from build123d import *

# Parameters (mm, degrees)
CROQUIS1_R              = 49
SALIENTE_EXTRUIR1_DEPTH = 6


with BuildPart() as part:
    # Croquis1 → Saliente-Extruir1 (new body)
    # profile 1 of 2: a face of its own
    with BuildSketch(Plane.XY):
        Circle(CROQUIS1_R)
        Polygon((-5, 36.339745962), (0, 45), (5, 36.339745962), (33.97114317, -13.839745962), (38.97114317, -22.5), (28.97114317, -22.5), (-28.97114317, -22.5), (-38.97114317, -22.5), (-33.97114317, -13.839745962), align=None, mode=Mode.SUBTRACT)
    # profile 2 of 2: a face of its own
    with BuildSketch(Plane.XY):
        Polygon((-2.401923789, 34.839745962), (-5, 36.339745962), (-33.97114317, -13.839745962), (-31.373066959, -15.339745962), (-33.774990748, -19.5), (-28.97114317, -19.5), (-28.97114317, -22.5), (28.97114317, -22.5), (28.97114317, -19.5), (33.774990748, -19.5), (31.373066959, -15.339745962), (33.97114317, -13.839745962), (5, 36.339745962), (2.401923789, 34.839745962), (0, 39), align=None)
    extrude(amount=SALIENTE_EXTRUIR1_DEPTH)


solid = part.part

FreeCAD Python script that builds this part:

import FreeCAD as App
import Part
import Sketcher
from FreeCAD import Vector
Q = App.Units.Quantity

doc = App.newDocument("Part")
body = doc.addObject("PartDesign::Body", "Body")

sketch1 = doc.addObject("Sketcher::SketchObject", "Sketch")
body.addObject(sketch1)
sketch1.AttachmentSupport = (doc.XY_Plane, [""])
sketch1.MapMode = "FlatFace"
sketch1.addGeometry([
    Part.Circle(Vector(0, 0, 0), Vector(0, 0, 1), 49),
    Part.LineSegment(Vector(-5, 36.3, 0), Vector(0, 45, 0)),
    Part.LineSegment(Vector(0, 45, 0), Vector(5, 36.3, 0)),
    Part.LineSegment(Vector(5, 36.3, 0), Vector(2.4, 34.8, 0)),
    Part.LineSegment(Vector(2.4, 34.8, 0), Vector(0, 39, 0)),
    Part.LineSegment(Vector(0, 39, 0), Vector(-2.4, 34.8, 0)),
    Part.LineSegment(Vector(-2.4, 34.8, 0), Vector(-5, 36.3, 0)),
    Part.LineSegment(Vector(34, -13.8, 0), Vector(39, -22.5, 0)),
    Part.LineSegment(Vector(39, -22.5, 0), Vector(29, -22.5, 0)),
    Part.LineSegment(Vector(29, -22.5, 0), Vector(29, -19.5, 0)),
    Part.LineSegment(Vector(29, -19.5, 0), Vector(33.8, -19.5, 0)),
    Part.LineSegment(Vector(33.8, -19.5, 0), Vector(31.4, -15.3, 0)),
    Part.LineSegment(Vector(31.4, -15.3, 0), Vector(34, -13.8, 0)),
    Part.LineSegment(Vector(-29, -22.5, 0), Vector(-39, -22.5, 0)),
    Part.LineSegment(Vector(-39, -22.5, 0), Vector(-34, -13.8, 0)),
    Part.LineSegment(Vector(-34, -13.8, 0), Vector(-31.4, -15.3, 0)),
    Part.LineSegment(Vector(-31.4, -15.3, 0), Vector(-33.8, -19.5, 0)),
    Part.LineSegment(Vector(-33.8, -19.5, 0), Vector(-29, -19.5, 0)),
    Part.LineSegment(Vector(-29, -19.5, 0), Vector(-29, -22.5, 0)),
], False)
sketch1.addConstraint([
    Sketcher.Constraint("Coincident", 1, 2, 2, 1),
    Sketcher.Constraint("Coincident", 2, 2, 3, 1),
    Sketcher.Constraint("Coincident", 3, 2, 4, 1),
    Sketcher.Constraint("Coincident", 4, 2, 5, 1),
    Sketcher.Constraint("Coincident", 5, 2, 6, 1),
    Sketcher.Constraint("Coincident", 6, 2, 1, 1),
    Sketcher.Constraint("Coincident", 7, 2, 8, 1),
    Sketcher.Constraint("Coincident", 8, 2, 9, 1),
    Sketcher.Constraint("Coincident", 9, 2, 10, 1),
    Sketcher.Constraint("Coincident", 10, 2, 11, 1),
    Sketcher.Constraint("Coincident", 11, 2, 12, 1),
    Sketcher.Constraint("Coincident", 12, 2, 7, 1),
    Sketcher.Constraint("Coincident", 13, 2, 14, 1),
    Sketcher.Constraint("Coincident", 14, 2, 15, 1),
    Sketcher.Constraint("Coincident", 15, 2, 16, 1),
    Sketcher.Constraint("Coincident", 16, 2, 17, 1),
    Sketcher.Constraint("Coincident", 17, 2, 18, 1),
    Sketcher.Constraint("Coincident", 18, 2, 13, 1),
    Sketcher.Constraint("Horizontal", 8),
    Sketcher.Constraint("Vertical", 9),
    Sketcher.Constraint("Horizontal", 10),
    Sketcher.Constraint("Horizontal", 13),
    Sketcher.Constraint("Horizontal", 17),
    Sketcher.Constraint("Vertical", 18),
    Sketcher.Constraint("Coincident", 0, 3, -1, 1),
    Sketcher.Constraint("Symmetric", 3, 2, 5, 2, -2),
    Sketcher.Constraint("Symmetric", 2, 2, 6, 2, -2),
    Sketcher.Constraint("Symmetric", 7, 2, 13, 2, -2),
    Sketcher.Constraint("Symmetric", 12, 2, 14, 2, -2),
    Sketcher.Constraint("Symmetric", 11, 2, 15, 2, -2),
    Sketcher.Constraint("Symmetric", 10, 2, 16, 2, -2),
    Sketcher.Constraint("PointOnObject", 1, 2, -2),
    Sketcher.Constraint("PointOnObject", 4, 2, -2),
    Sketcher.Constraint("Perpendicular", 2, 3),
    Sketcher.Constraint("Perpendicular", 3, 4),
    Sketcher.Constraint("Parallel", 4, 7),
    Sketcher.Constraint("Parallel", 7, 11),
    Sketcher.Constraint("Perpendicular", 11, 12),
    Sketcher.Constraint("Equal", 8, 13),
    Sketcher.Constraint("Equal", 2, 7),
    Sketcher.Constraint("Equal", 5, 11),
    Sketcher.Constraint("Equal", 6, 12),
    Sketcher.Constraint("Diameter", 0, 98.0),
    Sketcher.Constraint("DistanceX", 8, 2, 8, 1, 10.0),
    Sketcher.Constraint("DistanceY", 9, 1, 9, 2, 3.0),
    Sketcher.Constraint("Angle", 1, Q("60 deg")),
    Sketcher.Constraint("Distance", 1, 10.0),
    Sketcher.Constraint("DistanceY", -1, 1, 1, 2, 45.0),
    Sketcher.Constraint("DistanceY", 7, 2, -1, 1, 22.5),
    Sketcher.Constraint("DistanceX", -1, 1, 10, 2, 33.774991),
])
pad1 = doc.addObject("PartDesign::Pad", "Pad")
body.addObject(pad1)
pad1.Profile = sketch1
pad1.Length = 6

doc.recompute()
